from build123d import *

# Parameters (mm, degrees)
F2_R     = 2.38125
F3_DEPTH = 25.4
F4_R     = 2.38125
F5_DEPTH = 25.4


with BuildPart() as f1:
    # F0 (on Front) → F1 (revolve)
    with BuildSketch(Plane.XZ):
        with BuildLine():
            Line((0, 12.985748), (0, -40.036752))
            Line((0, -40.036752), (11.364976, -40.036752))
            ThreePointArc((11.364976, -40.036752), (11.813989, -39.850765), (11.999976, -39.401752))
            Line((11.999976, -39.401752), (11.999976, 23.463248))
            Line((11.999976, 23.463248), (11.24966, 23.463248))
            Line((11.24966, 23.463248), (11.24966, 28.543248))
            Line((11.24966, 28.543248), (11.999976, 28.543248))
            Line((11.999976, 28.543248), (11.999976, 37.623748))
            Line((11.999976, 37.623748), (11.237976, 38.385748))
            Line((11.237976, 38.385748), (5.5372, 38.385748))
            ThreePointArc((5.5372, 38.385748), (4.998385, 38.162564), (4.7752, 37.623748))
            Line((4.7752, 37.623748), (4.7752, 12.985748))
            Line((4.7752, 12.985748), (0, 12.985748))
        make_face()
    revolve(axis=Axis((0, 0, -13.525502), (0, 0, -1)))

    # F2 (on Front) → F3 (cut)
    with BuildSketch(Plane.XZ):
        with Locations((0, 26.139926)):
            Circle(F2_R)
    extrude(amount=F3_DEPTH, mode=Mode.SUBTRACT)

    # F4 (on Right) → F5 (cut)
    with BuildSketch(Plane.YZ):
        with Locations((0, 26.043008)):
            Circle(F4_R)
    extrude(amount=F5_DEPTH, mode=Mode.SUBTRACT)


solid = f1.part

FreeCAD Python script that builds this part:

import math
import FreeCAD as App
import Part
import Sketcher

V = App.Vector
Q = App.Units.Quantity

doc = App.newDocument("Part")
params = doc.addObject("Spreadsheet::Sheet", "Params")
for row, (alias, value) in enumerate([
    ("sketch1_radius", "0.03 in"),
    ("sketch1_height", "0.2 in"),
    ("sketch1_radius2", "0.025 in"),
    ("sketch1_height2", "0.97 in"),
    ("sketch1_width", "0.188 in"),
    ("revolution_angle", "360 deg"),
    ("sketch2_diameter", "0.1875 in"),
    ("pocket1_length", "1 in"),
    ("sketch3_diameter", "0.1875 in"),
    ("pocket2_length", "1 in"),
], start=1):
    params.set(f"A{row}", alias)
    params.set(f"B{row}", "=" + value)
    params.setAlias(f"B{row}", alias)

body = doc.addObject("PartDesign::Body", "Body")

# Sketch on XZ plane
sketch1 = doc.addObject("Sketcher::SketchObject", "Sketch")
body.addObject(sketch1)
sketch1.AttachmentSupport = (doc.XZ_Plane, [""])
sketch1.MapMode = "FlatFace"
sketch1.addGeometry(Part.LineSegment(V(0, 13, 0), V(0, -40, 0)), False)
sketch1.addGeometry(Part.LineSegment(V(0, -40, 0), V(11.4, -40, 0)), False)
sketch1.addGeometry(Part.ArcOfCircle(Part.Circle(V(11.4, -39.4, 0), V(0, 0, 1), 0.6), math.radians(-90), math.radians(0)), False)
sketch1.addGeometry(Part.LineSegment(V(12, -39.4, 0), V(12, 23.5, 0)), False)
sketch1.addGeometry(Part.LineSegment(V(12, 23.5, 0), V(11.2, 23.5, 0)), False)
sketch1.addGeometry(Part.LineSegment(V(11.2, 23.5, 0), V(11.2, 28.5, 0)), False)
sketch1.addGeometry(Part.LineSegment(V(11.2, 28.5, 0), V(12, 28.5, 0)), False)
sketch1.addGeometry(Part.LineSegment(V(12, 28.5, 0), V(12, 37.6, 0)), False)
sketch1.addGeometry(Part.LineSegment(V(12, 37.6, 0), V(11.2, 38.4, 0)), False)
sketch1.addGeometry(Part.LineSegment(V(11.2, 38.4, 0), V(5.5, 38.4, 0)), False)
sketch1.addGeometry(Part.ArcOfCircle(Part.Circle(V(5.5, 37.6, 0), V(0, 0, 1), 0.8), math.radians(90), math.radians(180)), False)
sketch1.addGeometry(Part.LineSegment(V(4.8, 37.6, 0), V(4.8, 13, 0)), False)
sketch1.addGeometry(Part.LineSegment(V(4.8, 13, 0), V(0, 13, 0)), False)
sketch1.addConstraint(Sketcher.Constraint("Coincident", 0, 2, 1, 1))
sketch1.addConstraint(Sketcher.Constraint("Tangent", 1, 2, 2, 1))
sketch1.addConstraint(Sketcher.Constraint("Tangent", 2, 2, 3, 1))
sketch1.addConstraint(Sketcher.Constraint("Coincident", 3, 2, 4, 1))
sketch1.addConstraint(Sketcher.Constraint("Coincident", 4, 2, 5, 1))
sketch1.addConstraint(Sketcher.Constraint("Coincident", 5, 2, 6, 1))
sketch1.addConstraint(Sketcher.Constraint("Coincident", 6, 2, 7, 1))
sketch1.addConstraint(Sketcher.Constraint("Coincident", 7, 2, 8, 1))
sketch1.addConstraint(Sketcher.Constraint("Coincident", 8, 2, 9, 1))
sketch1.addConstraint(Sketcher.Constraint("Tangent", 9, 2, 10, 1))
sketch1.addConstraint(Sketcher.Constraint("Tangent", 10, 2, 11, 1))
sketch1.addConstraint(Sketcher.Constraint("Coincident", 11, 2, 12, 1))
sketch1.addConstraint(Sketcher.Constraint("Coincident", 12, 2, 0, 1))
sketch1.addConstraint(Sketcher.Constraint("Vertical", 0))
sketch1.addConstraint(Sketcher.Constraint("Horizontal", 1))
sketch1.addConstraint(Sketcher.Constraint("Vertical", 3))
sketch1.addConstraint(Sketcher.Constraint("Horizontal", 4))
sketch1.addConstraint(Sketcher.Constraint("Vertical", 5))
sketch1.addConstraint(Sketcher.Constraint("Horizontal", 6))
sketch1.addConstraint(Sketcher.Constraint("Vertical", 7))
sketch1.addConstraint(Sketcher.Constraint("Horizontal", 9))
sketch1.addConstraint(Sketcher.Constraint("Vertical", 11))
sketch1.addConstraint(Sketcher.Constraint("Horizontal", 12))
sketch1.addConstraint(Sketcher.Constraint("PointOnObject", 0, 2, -2))
sketch1.addConstraint(Sketcher.Constraint("Horizontal", 10, 3, 7, 2))
sketch1.addConstraint(Sketcher.Constraint("Vertical", 3, 2, 6, 2))
sketch1.addConstraint(Sketcher.Constraint("Radius", 10, Q("0.03 in")))
sketch1.addConstraint(Sketcher.Constraint("DistanceY", 5, 1, 5, 2, Q("0.2 in")))
sketch1.addConstraint(Sketcher.Constraint("Angle", 8, Q("135 deg")))
sketch1.addConstraint(Sketcher.Constraint("Radius", 2, Q("0.025 in")))
sketch1.addConstraint(Sketcher.Constraint("DistanceY", 11, 2, 11, 1, Q("0.97 in")))
sketch1.addConstraint(Sketcher.Constraint("DistanceY", 1, 2, 3, 2, Q("2.5 in")))
sketch1.addConstraint(Sketcher.Constraint("DistanceX", 12, 2, 12, 1, Q("0.188 in")))
sketch1.addConstraint(Sketcher.Constraint("DistanceY", 0, 2, 0, 1, Q("2.0875 in")))
sketch1.addConstraint(Sketcher.Constraint("DistanceX", -1, 1, 4, 2, Q("0.4429 in")))
sketch1.addConstraint(Sketcher.Constraint("DistanceX", 1, 1, 1, 2, Q("11.364976 mm")))
sketch1.addConstraint(Sketcher.Constraint("DistanceY", -1, 1, 10, 3, Q("37.623748 mm")))
sketch1.setExpression("Constraints[26]", "Params.sketch1_radius")
sketch1.setExpression("Constraints[27]", "Params.sketch1_height")
sketch1.setExpression("Constraints[29]", "Params.sketch1_radius2")
sketch1.setExpression("Constraints[30]", "Params.sketch1_height2")
sketch1.setExpression("Constraints[32]", "Params.sketch1_width")
revolution = doc.addObject("PartDesign::Revolution", "Revolution")
body.addObject(revolution)
revolution.Profile = sketch1
revolution.ReferenceAxis = (sketch1, ["V_Axis"])
revolution.setExpression("Angle", "Params.revolution_angle")

# Sketch on XZ plane
sketch2 = doc.addObject("Sketcher::SketchObject", "Sketch001")
body.addObject(sketch2)
sketch2.AttachmentSupport = (doc.XZ_Plane, [""])
sketch2.MapMode = "FlatFace"
sketch2.addGeometry(Part.Circle(V(0, 26.1, 0), V(0, 0, 1), 2.4), False)
sketch2.addConstraint(Sketcher.Constraint("PointOnObject", 0, 3, -2))
sketch2.addConstraint(Sketcher.Constraint("Diameter", 0, Q("0.1875 in")))
sketch2.addConstraint(Sketcher.Constraint("DistanceY", -1, 1, 0, 3, Q("26.139926 mm")))
sketch2.setExpression("Constraints[1]", "Params.sketch2_diameter")
pocket1 = doc.addObject("PartDesign::Pocket", "Pocket")
body.addObject(pocket1)
pocket1.Profile = sketch2
pocket1.setExpression("Length", "Params.pocket1_length")
pocket1.Reversed = True

# Sketch on YZ plane
sketch3 = doc.addObject("Sketcher::SketchObject", "Sketch002")
body.addObject(sketch3)
sketch3.AttachmentSupport = (doc.YZ_Plane, [""])
sketch3.MapMode = "FlatFace"
sketch3.addGeometry(Part.Circle(V(0, 26, 0), V(0, 0, 1), 2.4), False)
sketch3.addConstraint(Sketcher.Constraint("PointOnObject", 0, 3, -2))
sketch3.addConstraint(Sketcher.Constraint("Diameter", 0, Q("0.1875 in")))
sketch3.addConstraint(Sketcher.Constraint("DistanceY", -1, 1, 0, 3, Q("26.043008 mm")))
sketch3.setExpression("Constraints[1]", "Params.sketch3_diameter")
pocket2 = doc.addObject("PartDesign::Pocket", "Pocket001")
body.addObject(pocket2)
pocket2.Profile = sketch3
pocket2.setExpression("Length", "Params.pocket2_length")
pocket2.Reversed = True

doc.recompute()
